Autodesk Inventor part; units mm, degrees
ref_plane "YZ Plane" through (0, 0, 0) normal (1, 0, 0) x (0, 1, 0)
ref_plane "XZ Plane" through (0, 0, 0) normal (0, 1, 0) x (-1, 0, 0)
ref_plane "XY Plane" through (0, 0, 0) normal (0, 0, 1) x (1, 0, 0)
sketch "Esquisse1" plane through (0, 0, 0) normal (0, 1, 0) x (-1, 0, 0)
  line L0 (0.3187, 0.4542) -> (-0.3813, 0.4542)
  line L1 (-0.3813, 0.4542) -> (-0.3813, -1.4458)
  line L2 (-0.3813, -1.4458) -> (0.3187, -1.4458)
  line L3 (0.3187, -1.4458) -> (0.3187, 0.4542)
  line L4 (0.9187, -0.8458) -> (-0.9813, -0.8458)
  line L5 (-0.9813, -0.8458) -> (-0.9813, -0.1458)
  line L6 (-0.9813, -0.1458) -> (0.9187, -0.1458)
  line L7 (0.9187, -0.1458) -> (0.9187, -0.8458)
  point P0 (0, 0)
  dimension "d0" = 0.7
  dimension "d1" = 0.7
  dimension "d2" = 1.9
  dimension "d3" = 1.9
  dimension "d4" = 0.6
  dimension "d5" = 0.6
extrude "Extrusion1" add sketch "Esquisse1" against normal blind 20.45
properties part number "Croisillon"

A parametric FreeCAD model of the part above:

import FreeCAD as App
import Part
import Sketcher
from FreeCAD import Vector
Q = App.Units.Quantity

doc = App.newDocument("Part")
params = doc.addObject("Spreadsheet::Sheet", "Params")
for row, (alias, value) in enumerate([
    ("sketch1_width", "0.7 mm"),
    ("sketch1_width2", "0.6 mm"),
    ("pad1_length", "20.45 mm"),
], start=1):
    params.set(f"A{row}", alias)
    params.set(f"B{row}", "=" + value)
    params.setAlias(f"B{row}", alias)

body = doc.addObject("PartDesign::Body", "Body")

# Sketch on XZ plane
sketch1 = body.newObject("Sketcher::SketchObject", "Sketch")
sketch1.AttachmentSupport = (doc.getObject("XZ_Plane"), [""])
sketch1.MapMode = "FlatFace"
sketch1.addGeometry([
    Part.LineSegment(Vector(-0.3, -0.1, 0), Vector(-0.3, 0.5, 0)),  # 0
    Part.LineSegment(Vector(-0.3, 0.5, 0), Vector(0.4, 0.5, 0)),  # 1
    Part.LineSegment(Vector(0.4, 0.5, 0), Vector(0.4, -0.1, 0)),  # 2
    Part.LineSegment(Vector(0.4, -0.1, 0), Vector(1, -0.1, 0)),  # 3
    Part.LineSegment(Vector(1, -0.1, 0), Vector(1, -0.8, 0)),  # 4
    Part.LineSegment(Vector(1, -0.8, 0), Vector(0.4, -0.8, 0)),  # 5
    Part.LineSegment(Vector(0.4, -0.8, 0), Vector(0.4, -1.4, 0)),  # 6
    Part.LineSegment(Vector(0.4, -1.4, 0), Vector(-0.3, -1.4, 0)),  # 7
    Part.LineSegment(Vector(-0.3, -1.4, 0), Vector(-0.3, -0.8, 0)),  # 8
    Part.LineSegment(Vector(-0.3, -0.8, 0), Vector(-0.9, -0.8, 0)),  # 9
    Part.LineSegment(Vector(-0.9, -0.8, 0), Vector(-0.9, -0.1, 0)),  # 10
    Part.LineSegment(Vector(-0.9, -0.1, 0), Vector(-0.3, -0.1, 0)),  # 11
], False)
sketch1.addConstraint([
    Sketcher.Constraint("Coincident", 0, 2, 1, 1),
    Sketcher.Constraint("Coincident", 1, 2, 2, 1),
    Sketcher.Constraint("Coincident", 2, 2, 3, 1),
    Sketcher.Constraint("Coincident", 3, 2, 4, 1),
    Sketcher.Constraint("Coincident", 4, 2, 5, 1),
    Sketcher.Constraint("Coincident", 5, 2, 6, 1),
    Sketcher.Constraint("Coincident", 6, 2, 7, 1),
    Sketcher.Constraint("Coincident", 7, 2, 8, 1),
    Sketcher.Constraint("Coincident", 8, 2, 9, 1),
    Sketcher.Constraint("Coincident", 9, 2, 10, 1),
    Sketcher.Constraint("Coincident", 10, 2, 11, 1),
    Sketcher.Constraint("Coincident", 11, 2, 0, 1),
    Sketcher.Constraint("Vertical", 0),
    Sketcher.Constraint("Horizontal", 1),
    Sketcher.Constraint("Vertical", 2),
    Sketcher.Constraint("Horizontal", 3),
    Sketcher.Constraint("Vertical", 4),
    Sketcher.Constraint("Horizontal", 5),
    Sketcher.Constraint("Vertical", 6),
    Sketcher.Constraint("Horizontal", 7),
    Sketcher.Constraint("Vertical", 8),
    Sketcher.Constraint("Horizontal", 9),
    Sketcher.Constraint("Vertical", 10),
    Sketcher.Constraint("Horizontal", 11),
    Sketcher.Constraint("Horizontal", 5, 2, 8, 2),
    Sketcher.Constraint("Horizontal", 3, 2, 10, 2),
    Sketcher.Constraint("Vertical", 2, 2, 5, 2),
    Sketcher.Constraint("Vertical", 0, 2, 7, 2),
    Sketcher.Constraint("Equal", 5, 9),
    Sketcher.Constraint("Equal", 11, 0),
    Sketcher.Constraint("Equal", 7, 4),
    Sketcher.Constraint("Equal", 2, 6),
    Sketcher.Constraint("DistanceX", 1, 1, 1, 2, Q("0.7 mm")),
    Sketcher.Constraint("DistanceX", 3, 1, 3, 2, Q("0.6 mm")),
    Sketcher.Constraint("DistanceX", 0, 2, -1, 1, Q("0.3187 mm")),
    Sketcher.Constraint("DistanceY", -1, 1, 0, 2, Q("0.4542 mm")),
])
sketch1.setExpression("Constraints[32]", "Params.sketch1_width")
sketch1.setExpression("Constraints[33]", "Params.sketch1_width2")
pad1 = body.newObject("PartDesign::Pad", "Pad")
pad1.Profile = sketch1
pad1.setExpression("Length", "Params.pad1_length")

doc.recompute()
